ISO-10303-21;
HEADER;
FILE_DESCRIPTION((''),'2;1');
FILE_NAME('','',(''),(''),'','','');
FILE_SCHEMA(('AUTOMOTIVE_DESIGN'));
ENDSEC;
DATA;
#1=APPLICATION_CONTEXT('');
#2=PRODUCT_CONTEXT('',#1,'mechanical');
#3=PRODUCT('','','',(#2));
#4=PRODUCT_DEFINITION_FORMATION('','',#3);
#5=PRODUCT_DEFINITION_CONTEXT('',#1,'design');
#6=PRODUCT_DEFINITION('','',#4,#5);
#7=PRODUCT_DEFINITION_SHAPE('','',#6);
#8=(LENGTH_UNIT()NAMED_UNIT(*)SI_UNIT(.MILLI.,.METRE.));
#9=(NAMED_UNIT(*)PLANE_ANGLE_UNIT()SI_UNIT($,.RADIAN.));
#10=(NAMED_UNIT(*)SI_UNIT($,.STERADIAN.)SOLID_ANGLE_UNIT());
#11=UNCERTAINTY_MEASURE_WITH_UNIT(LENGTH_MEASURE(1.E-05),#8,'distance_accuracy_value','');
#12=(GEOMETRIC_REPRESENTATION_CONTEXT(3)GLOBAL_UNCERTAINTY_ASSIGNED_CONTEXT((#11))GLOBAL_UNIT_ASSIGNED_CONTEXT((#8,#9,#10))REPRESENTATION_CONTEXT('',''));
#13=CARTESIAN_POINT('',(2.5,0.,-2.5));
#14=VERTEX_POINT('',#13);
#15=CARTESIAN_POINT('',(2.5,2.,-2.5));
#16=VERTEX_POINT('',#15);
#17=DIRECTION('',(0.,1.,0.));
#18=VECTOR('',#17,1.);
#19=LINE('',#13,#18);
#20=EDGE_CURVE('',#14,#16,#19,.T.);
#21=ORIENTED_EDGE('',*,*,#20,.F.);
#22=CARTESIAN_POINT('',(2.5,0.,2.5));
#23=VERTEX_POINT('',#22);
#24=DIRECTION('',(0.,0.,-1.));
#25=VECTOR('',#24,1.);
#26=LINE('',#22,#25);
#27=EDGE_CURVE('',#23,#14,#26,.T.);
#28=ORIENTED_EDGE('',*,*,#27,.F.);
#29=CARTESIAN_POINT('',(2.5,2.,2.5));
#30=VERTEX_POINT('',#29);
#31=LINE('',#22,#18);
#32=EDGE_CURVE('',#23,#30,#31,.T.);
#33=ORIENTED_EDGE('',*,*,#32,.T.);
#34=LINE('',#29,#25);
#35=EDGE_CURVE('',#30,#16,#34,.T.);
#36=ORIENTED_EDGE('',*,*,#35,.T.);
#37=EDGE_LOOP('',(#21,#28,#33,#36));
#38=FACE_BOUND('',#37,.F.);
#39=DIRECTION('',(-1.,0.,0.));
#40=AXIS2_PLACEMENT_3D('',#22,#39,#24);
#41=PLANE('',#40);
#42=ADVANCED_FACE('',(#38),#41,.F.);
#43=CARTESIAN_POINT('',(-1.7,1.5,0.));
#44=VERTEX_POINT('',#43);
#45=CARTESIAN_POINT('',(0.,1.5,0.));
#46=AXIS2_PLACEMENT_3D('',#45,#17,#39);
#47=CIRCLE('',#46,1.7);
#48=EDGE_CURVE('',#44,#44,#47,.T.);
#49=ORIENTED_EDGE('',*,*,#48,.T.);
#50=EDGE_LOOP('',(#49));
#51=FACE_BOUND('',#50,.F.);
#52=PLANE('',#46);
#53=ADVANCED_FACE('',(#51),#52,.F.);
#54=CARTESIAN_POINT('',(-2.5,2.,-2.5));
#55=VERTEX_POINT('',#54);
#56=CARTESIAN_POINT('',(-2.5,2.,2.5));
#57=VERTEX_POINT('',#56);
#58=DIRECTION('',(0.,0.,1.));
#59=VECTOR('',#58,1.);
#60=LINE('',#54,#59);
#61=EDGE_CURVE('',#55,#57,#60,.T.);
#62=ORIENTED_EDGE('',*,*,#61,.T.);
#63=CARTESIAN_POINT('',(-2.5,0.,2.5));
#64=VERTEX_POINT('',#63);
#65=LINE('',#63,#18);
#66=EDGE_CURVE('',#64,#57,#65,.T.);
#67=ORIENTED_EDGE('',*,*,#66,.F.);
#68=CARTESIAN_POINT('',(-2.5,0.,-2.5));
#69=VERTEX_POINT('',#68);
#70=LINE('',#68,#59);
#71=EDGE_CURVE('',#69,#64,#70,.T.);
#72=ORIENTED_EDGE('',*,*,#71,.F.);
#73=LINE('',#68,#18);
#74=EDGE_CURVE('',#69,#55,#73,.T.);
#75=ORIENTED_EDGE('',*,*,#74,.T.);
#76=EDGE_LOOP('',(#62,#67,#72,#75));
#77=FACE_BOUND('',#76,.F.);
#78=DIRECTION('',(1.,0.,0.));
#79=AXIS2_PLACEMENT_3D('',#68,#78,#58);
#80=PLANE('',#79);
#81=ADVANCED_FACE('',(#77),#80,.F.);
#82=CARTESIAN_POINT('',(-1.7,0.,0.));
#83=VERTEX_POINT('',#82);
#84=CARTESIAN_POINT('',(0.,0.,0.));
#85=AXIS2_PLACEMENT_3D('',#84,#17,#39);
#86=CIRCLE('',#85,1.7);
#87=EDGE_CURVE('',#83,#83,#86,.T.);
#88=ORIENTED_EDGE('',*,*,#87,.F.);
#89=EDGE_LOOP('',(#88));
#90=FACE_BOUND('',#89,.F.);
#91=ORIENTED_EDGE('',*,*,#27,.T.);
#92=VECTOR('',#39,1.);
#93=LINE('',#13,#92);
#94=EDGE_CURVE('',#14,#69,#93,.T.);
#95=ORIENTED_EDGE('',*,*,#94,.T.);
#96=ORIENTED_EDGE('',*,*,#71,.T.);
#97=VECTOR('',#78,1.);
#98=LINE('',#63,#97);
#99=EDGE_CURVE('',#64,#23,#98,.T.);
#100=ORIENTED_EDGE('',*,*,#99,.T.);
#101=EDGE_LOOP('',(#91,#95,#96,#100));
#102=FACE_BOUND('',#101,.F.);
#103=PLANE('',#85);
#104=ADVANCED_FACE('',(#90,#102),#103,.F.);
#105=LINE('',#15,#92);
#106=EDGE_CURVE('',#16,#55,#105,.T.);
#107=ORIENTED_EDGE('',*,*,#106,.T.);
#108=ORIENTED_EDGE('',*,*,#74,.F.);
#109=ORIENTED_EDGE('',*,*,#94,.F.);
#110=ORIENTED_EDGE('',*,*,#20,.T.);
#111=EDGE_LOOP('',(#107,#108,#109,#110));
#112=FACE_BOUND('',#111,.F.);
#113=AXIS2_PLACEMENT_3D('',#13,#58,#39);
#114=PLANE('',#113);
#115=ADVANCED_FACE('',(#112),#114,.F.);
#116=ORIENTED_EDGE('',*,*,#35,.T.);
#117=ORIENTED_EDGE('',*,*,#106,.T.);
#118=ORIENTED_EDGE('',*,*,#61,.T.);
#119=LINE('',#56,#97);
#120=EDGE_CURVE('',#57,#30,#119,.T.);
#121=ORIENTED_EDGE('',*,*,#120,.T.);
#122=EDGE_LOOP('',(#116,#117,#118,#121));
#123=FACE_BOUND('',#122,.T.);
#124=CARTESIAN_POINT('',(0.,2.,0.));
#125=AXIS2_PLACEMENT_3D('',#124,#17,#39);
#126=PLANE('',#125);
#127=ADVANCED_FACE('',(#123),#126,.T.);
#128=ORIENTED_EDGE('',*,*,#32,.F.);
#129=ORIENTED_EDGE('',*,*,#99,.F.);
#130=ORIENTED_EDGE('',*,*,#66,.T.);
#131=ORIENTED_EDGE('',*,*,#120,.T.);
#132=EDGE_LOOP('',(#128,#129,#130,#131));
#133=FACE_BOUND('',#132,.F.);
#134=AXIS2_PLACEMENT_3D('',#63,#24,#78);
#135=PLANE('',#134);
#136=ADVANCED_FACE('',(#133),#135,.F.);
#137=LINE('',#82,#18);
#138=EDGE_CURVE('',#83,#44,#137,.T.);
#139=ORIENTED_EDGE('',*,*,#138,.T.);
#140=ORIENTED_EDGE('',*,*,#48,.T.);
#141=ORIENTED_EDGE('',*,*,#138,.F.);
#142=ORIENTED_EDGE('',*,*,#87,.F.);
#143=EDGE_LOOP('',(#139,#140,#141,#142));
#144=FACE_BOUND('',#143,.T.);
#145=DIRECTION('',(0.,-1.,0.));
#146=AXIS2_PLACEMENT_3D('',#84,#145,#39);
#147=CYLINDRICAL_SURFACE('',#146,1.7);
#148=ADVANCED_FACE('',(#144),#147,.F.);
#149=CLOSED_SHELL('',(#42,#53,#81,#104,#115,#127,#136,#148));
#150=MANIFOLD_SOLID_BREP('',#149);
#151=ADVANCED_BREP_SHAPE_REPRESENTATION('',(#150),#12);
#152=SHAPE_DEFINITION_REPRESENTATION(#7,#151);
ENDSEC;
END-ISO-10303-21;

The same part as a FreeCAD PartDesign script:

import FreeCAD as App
import Part
import Sketcher
from FreeCAD import Vector

doc = App.newDocument("Part")
body = doc.addObject("PartDesign::Body", "Body")

# Sketch on XZ plane
sketch1 = body.newObject("Sketcher::SketchObject", "Sketch")
sketch1.AttachmentSupport = (doc.getObject("XZ_Plane"), [""])
sketch1.MapMode = "FlatFace"
sketch1.addGeometry(Part.LineSegment(Vector(-2.5, -2.5, 0), Vector(-2.5, 2.5, 0)), False)
sketch1.addGeometry(Part.LineSegment(Vector(-2.5, 2.5, 0), Vector(2.5, 2.5, 0)), False)
sketch1.addGeometry(Part.LineSegment(Vector(2.5, 2.5, 0), Vector(2.5, -2.5, 0)), False)
sketch1.addGeometry(Part.LineSegment(Vector(2.5, -2.5, 0), Vector(-2.5, -2.5, 0)), False)
sketch1.addConstraint(Sketcher.Constraint("Coincident", 0, 2, 1, 1))
sketch1.addConstraint(Sketcher.Constraint("Coincident", 1, 2, 2, 1))
sketch1.addConstraint(Sketcher.Constraint("Coincident", 2, 2, 3, 1))
sketch1.addConstraint(Sketcher.Constraint("Coincident", 3, 2, 0, 1))
sketch1.addConstraint(Sketcher.Constraint("Vertical", 0))
sketch1.addConstraint(Sketcher.Constraint("Horizontal", 1))
sketch1.addConstraint(Sketcher.Constraint("Vertical", 2))
sketch1.addConstraint(Sketcher.Constraint("Horizontal", 3))
sketch1.addConstraint(Sketcher.Constraint("Symmetric", 0, 2, 2, 2, -1, 1))
sketch1.addConstraint(Sketcher.Constraint("Equal", 3, 0))
sketch1.addConstraint(Sketcher.Constraint("DistanceX", 1, 1, 1, 2, 5.0))
pad1 = body.newObject("PartDesign::Pad", "Pad")
pad1.Profile = sketch1
pad1.Length = 2
pad1.Reversed = True

# Sketch on XZ plane
sketch2 = body.newObject("Sketcher::SketchObject", "Sketch001")
sketch2.AttachmentSupport = (doc.getObject("XZ_Plane"), [""])
sketch2.MapMode = "FlatFace"
sketch2.addGeometry(Part.Circle(Vector(0, 0, 0), Vector(0, 0, 1), 1.7), False)
sketch2.addConstraint(Sketcher.Constraint("Coincident", 0, 3, -1, 1))
sketch2.addConstraint(Sketcher.Constraint("Diameter", 0, 3.4))
pocket1 = body.newObject("PartDesign::Pocket", "Pocket")
pocket1.Profile = sketch2
pocket1.Length = 1.5

doc.recompute()
